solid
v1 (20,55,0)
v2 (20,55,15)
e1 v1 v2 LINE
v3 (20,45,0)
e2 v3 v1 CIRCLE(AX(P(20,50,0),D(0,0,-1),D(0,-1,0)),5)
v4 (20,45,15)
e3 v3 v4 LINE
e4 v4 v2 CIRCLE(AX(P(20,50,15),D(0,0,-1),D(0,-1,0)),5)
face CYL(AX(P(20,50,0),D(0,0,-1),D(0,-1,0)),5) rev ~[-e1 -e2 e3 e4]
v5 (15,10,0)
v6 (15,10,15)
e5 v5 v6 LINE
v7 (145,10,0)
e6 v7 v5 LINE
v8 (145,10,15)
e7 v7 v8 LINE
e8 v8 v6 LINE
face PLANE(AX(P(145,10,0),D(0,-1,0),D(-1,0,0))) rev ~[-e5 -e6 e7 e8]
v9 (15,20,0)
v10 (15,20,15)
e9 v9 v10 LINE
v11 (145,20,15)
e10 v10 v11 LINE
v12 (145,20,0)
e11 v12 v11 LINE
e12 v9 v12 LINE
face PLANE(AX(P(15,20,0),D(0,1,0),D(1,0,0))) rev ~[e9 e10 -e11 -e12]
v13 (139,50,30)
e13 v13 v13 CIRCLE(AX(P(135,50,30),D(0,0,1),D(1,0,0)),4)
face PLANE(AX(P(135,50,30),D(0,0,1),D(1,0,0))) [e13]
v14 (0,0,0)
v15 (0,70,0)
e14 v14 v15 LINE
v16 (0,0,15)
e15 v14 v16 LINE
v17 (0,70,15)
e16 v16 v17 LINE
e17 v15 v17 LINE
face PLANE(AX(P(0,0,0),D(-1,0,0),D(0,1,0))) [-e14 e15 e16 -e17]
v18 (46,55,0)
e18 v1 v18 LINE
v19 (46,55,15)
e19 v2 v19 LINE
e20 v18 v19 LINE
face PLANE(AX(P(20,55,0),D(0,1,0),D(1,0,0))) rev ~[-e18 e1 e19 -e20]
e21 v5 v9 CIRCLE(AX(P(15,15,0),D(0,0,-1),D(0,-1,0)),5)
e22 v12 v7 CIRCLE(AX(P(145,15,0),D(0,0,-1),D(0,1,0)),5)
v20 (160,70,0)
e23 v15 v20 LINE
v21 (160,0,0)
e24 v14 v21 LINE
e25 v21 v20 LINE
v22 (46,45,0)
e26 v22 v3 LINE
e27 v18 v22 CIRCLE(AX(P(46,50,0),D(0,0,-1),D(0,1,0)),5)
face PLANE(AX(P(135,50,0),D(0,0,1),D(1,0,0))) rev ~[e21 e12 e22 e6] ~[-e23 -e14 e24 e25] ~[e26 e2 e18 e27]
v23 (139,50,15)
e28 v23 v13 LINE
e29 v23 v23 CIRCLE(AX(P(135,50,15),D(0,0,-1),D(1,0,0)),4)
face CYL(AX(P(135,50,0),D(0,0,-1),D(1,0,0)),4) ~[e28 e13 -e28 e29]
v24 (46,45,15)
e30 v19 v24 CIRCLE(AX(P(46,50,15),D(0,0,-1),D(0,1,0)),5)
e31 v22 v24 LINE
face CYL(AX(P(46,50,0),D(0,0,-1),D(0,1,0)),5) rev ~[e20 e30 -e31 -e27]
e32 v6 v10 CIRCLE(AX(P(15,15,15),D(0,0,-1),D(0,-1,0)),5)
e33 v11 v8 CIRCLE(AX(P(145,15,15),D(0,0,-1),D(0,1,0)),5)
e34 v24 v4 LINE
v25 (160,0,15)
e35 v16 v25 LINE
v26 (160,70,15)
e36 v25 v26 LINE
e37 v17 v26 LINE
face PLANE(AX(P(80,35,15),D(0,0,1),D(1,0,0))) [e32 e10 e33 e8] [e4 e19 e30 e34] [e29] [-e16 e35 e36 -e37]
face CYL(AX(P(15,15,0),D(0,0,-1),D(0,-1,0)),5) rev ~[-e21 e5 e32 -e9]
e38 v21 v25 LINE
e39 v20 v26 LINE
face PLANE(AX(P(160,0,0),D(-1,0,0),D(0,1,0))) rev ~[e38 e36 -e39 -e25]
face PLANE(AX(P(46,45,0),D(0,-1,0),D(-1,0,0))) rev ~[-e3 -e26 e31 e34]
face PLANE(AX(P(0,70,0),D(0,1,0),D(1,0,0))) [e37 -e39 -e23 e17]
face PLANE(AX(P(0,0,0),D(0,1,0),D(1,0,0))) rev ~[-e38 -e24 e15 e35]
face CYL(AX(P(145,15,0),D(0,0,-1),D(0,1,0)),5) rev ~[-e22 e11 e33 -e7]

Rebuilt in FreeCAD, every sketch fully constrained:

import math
import FreeCAD as App
import Part
import Sketcher

doc = App.newDocument("Part")
body = doc.addObject("PartDesign::Body", "Body")

# Sketch on XY plane
sketch1 = body.newObject("Sketcher::SketchObject", "Sketch")
sketch1.AttachmentSupport = (doc.getObject("XY_Plane"), [""])
sketch1.MapMode = "FlatFace"
sketch1.addGeometry(Part.LineSegment(App.Vector(0, 70, 0), App.Vector(0, 0, 0)), False)
sketch1.addGeometry(Part.LineSegment(App.Vector(0, 0, 0), App.Vector(160, 0, 0)), False)
sketch1.addGeometry(Part.LineSegment(App.Vector(160, 0, 0), App.Vector(160, 70, 0)), False)
sketch1.addGeometry(Part.LineSegment(App.Vector(160, 70, 0), App.Vector(0, 70, 0)), False)
sketch1.addGeometry(Part.LineSegment(App.Vector(145, 10, 0), App.Vector(15, 10, 0)), False)
sketch1.addGeometry(Part.ArcOfCircle(Part.Circle(App.Vector(15, 15, 0), App.Vector(0, 0, 1), 5), math.radians(90), math.radians(270)), False)
sketch1.addGeometry(Part.LineSegment(App.Vector(15, 20, 0), App.Vector(145, 20, 0)), False)
sketch1.addGeometry(Part.ArcOfCircle(Part.Circle(App.Vector(145, 15, 0), App.Vector(0, 0, 1), 5), math.radians(-90), math.radians(90)), False)
sketch1.addGeometry(Part.LineSegment(App.Vector(46, 45, 0), App.Vector(20, 45, 0)), False)
sketch1.addGeometry(Part.ArcOfCircle(Part.Circle(App.Vector(20, 50, 0), App.Vector(0, 0, 1), 5), math.radians(90), math.radians(270)), False)
sketch1.addGeometry(Part.LineSegment(App.Vector(20, 55, 0), App.Vector(46, 55, 0)), False)
sketch1.addGeometry(Part.ArcOfCircle(Part.Circle(App.Vector(46, 50, 0), App.Vector(0, 0, 1), 5), math.radians(-90), math.radians(90)), False)
sketch1.addConstraint(Sketcher.Constraint("Coincident", 0, 2, 1, 1))
sketch1.addConstraint(Sketcher.Constraint("Coincident", 1, 2, 2, 1))
sketch1.addConstraint(Sketcher.Constraint("Coincident", 2, 2, 3, 1))
sketch1.addConstraint(Sketcher.Constraint("Coincident", 3, 2, 0, 1))
sketch1.addConstraint(Sketcher.Constraint("Tangent", 4, 2, 5, 2))
sketch1.addConstraint(Sketcher.Constraint("Tangent", 5, 1, 6, 1))
sketch1.addConstraint(Sketcher.Constraint("Tangent", 6, 2, 7, 2))
sketch1.addConstraint(Sketcher.Constraint("Tangent", 7, 1, 4, 1))
sketch1.addConstraint(Sketcher.Constraint("Tangent", 8, 2, 9, 2))
sketch1.addConstraint(Sketcher.Constraint("Tangent", 9, 1, 10, 1))
sketch1.addConstraint(Sketcher.Constraint("Tangent", 10, 2, 11, 2))
sketch1.addConstraint(Sketcher.Constraint("Tangent", 11, 1, 8, 1))
sketch1.addConstraint(Sketcher.Constraint("Vertical", 0))
sketch1.addConstraint(Sketcher.Constraint("Horizontal", 1))
sketch1.addConstraint(Sketcher.Constraint("Vertical", 2))
sketch1.addConstraint(Sketcher.Constraint("Horizontal", 3))
sketch1.addConstraint(Sketcher.Constraint("Horizontal", 4))
sketch1.addConstraint(Sketcher.Constraint("Horizontal", 6))
sketch1.addConstraint(Sketcher.Constraint("Horizontal", 8))
sketch1.addConstraint(Sketcher.Constraint("Horizontal", 10))
sketch1.addConstraint(Sketcher.Constraint("Coincident", 0, 2, -1, 1))
sketch1.addConstraint(Sketcher.Constraint("Equal", 7, 9))
sketch1.addConstraint(Sketcher.Constraint("Radius", 5, 5.0))
sketch1.addConstraint(Sketcher.Constraint("DistanceX", 1, 1, 1, 2, 160.0))
sketch1.addConstraint(Sketcher.Constraint("DistanceX", 4, 2, 4, 1, 130.0))
sketch1.addConstraint(Sketcher.Constraint("DistanceX", 8, 2, 8, 1, 26.0))
sketch1.addConstraint(Sketcher.Constraint("DistanceY", 0, 2, 0, 1, 70.0))
sketch1.addConstraint(Sketcher.Constraint("DistanceX", -1, 1, 5, 3, 15.0))
sketch1.addConstraint(Sketcher.Constraint("DistanceY", -1, 1, 5, 3, 15.0))
sketch1.addConstraint(Sketcher.Constraint("DistanceX", -1, 1, 9, 3, 20.0))
sketch1.addConstraint(Sketcher.Constraint("DistanceY", -1, 1, 9, 3, 50.0))
pad1 = body.newObject("PartDesign::Pad", "Pad")
pad1.Profile = sketch1
pad1.Length = 15

# Sketch on XY plane
sketch2 = body.newObject("Sketcher::SketchObject", "Sketch001")
sketch2.AttachmentSupport = (doc.getObject("XY_Plane"), [""])
sketch2.MapMode = "FlatFace"
sketch2.addGeometry(Part.Circle(App.Vector(135, 50, 0), App.Vector(0, 0, 1), 4), False)
sketch2.addConstraint(Sketcher.Constraint("Diameter", 0, 8.0))
sketch2.addConstraint(Sketcher.Constraint("DistanceX", -1, 1, 0, 3, 135.0))
sketch2.addConstraint(Sketcher.Constraint("DistanceY", -1, 1, 0, 3, 50.0))
pad2 = body.newObject("PartDesign::Pad", "Pad001")
pad2.Profile = sketch2
pad2.Length = 30

doc.recompute()
